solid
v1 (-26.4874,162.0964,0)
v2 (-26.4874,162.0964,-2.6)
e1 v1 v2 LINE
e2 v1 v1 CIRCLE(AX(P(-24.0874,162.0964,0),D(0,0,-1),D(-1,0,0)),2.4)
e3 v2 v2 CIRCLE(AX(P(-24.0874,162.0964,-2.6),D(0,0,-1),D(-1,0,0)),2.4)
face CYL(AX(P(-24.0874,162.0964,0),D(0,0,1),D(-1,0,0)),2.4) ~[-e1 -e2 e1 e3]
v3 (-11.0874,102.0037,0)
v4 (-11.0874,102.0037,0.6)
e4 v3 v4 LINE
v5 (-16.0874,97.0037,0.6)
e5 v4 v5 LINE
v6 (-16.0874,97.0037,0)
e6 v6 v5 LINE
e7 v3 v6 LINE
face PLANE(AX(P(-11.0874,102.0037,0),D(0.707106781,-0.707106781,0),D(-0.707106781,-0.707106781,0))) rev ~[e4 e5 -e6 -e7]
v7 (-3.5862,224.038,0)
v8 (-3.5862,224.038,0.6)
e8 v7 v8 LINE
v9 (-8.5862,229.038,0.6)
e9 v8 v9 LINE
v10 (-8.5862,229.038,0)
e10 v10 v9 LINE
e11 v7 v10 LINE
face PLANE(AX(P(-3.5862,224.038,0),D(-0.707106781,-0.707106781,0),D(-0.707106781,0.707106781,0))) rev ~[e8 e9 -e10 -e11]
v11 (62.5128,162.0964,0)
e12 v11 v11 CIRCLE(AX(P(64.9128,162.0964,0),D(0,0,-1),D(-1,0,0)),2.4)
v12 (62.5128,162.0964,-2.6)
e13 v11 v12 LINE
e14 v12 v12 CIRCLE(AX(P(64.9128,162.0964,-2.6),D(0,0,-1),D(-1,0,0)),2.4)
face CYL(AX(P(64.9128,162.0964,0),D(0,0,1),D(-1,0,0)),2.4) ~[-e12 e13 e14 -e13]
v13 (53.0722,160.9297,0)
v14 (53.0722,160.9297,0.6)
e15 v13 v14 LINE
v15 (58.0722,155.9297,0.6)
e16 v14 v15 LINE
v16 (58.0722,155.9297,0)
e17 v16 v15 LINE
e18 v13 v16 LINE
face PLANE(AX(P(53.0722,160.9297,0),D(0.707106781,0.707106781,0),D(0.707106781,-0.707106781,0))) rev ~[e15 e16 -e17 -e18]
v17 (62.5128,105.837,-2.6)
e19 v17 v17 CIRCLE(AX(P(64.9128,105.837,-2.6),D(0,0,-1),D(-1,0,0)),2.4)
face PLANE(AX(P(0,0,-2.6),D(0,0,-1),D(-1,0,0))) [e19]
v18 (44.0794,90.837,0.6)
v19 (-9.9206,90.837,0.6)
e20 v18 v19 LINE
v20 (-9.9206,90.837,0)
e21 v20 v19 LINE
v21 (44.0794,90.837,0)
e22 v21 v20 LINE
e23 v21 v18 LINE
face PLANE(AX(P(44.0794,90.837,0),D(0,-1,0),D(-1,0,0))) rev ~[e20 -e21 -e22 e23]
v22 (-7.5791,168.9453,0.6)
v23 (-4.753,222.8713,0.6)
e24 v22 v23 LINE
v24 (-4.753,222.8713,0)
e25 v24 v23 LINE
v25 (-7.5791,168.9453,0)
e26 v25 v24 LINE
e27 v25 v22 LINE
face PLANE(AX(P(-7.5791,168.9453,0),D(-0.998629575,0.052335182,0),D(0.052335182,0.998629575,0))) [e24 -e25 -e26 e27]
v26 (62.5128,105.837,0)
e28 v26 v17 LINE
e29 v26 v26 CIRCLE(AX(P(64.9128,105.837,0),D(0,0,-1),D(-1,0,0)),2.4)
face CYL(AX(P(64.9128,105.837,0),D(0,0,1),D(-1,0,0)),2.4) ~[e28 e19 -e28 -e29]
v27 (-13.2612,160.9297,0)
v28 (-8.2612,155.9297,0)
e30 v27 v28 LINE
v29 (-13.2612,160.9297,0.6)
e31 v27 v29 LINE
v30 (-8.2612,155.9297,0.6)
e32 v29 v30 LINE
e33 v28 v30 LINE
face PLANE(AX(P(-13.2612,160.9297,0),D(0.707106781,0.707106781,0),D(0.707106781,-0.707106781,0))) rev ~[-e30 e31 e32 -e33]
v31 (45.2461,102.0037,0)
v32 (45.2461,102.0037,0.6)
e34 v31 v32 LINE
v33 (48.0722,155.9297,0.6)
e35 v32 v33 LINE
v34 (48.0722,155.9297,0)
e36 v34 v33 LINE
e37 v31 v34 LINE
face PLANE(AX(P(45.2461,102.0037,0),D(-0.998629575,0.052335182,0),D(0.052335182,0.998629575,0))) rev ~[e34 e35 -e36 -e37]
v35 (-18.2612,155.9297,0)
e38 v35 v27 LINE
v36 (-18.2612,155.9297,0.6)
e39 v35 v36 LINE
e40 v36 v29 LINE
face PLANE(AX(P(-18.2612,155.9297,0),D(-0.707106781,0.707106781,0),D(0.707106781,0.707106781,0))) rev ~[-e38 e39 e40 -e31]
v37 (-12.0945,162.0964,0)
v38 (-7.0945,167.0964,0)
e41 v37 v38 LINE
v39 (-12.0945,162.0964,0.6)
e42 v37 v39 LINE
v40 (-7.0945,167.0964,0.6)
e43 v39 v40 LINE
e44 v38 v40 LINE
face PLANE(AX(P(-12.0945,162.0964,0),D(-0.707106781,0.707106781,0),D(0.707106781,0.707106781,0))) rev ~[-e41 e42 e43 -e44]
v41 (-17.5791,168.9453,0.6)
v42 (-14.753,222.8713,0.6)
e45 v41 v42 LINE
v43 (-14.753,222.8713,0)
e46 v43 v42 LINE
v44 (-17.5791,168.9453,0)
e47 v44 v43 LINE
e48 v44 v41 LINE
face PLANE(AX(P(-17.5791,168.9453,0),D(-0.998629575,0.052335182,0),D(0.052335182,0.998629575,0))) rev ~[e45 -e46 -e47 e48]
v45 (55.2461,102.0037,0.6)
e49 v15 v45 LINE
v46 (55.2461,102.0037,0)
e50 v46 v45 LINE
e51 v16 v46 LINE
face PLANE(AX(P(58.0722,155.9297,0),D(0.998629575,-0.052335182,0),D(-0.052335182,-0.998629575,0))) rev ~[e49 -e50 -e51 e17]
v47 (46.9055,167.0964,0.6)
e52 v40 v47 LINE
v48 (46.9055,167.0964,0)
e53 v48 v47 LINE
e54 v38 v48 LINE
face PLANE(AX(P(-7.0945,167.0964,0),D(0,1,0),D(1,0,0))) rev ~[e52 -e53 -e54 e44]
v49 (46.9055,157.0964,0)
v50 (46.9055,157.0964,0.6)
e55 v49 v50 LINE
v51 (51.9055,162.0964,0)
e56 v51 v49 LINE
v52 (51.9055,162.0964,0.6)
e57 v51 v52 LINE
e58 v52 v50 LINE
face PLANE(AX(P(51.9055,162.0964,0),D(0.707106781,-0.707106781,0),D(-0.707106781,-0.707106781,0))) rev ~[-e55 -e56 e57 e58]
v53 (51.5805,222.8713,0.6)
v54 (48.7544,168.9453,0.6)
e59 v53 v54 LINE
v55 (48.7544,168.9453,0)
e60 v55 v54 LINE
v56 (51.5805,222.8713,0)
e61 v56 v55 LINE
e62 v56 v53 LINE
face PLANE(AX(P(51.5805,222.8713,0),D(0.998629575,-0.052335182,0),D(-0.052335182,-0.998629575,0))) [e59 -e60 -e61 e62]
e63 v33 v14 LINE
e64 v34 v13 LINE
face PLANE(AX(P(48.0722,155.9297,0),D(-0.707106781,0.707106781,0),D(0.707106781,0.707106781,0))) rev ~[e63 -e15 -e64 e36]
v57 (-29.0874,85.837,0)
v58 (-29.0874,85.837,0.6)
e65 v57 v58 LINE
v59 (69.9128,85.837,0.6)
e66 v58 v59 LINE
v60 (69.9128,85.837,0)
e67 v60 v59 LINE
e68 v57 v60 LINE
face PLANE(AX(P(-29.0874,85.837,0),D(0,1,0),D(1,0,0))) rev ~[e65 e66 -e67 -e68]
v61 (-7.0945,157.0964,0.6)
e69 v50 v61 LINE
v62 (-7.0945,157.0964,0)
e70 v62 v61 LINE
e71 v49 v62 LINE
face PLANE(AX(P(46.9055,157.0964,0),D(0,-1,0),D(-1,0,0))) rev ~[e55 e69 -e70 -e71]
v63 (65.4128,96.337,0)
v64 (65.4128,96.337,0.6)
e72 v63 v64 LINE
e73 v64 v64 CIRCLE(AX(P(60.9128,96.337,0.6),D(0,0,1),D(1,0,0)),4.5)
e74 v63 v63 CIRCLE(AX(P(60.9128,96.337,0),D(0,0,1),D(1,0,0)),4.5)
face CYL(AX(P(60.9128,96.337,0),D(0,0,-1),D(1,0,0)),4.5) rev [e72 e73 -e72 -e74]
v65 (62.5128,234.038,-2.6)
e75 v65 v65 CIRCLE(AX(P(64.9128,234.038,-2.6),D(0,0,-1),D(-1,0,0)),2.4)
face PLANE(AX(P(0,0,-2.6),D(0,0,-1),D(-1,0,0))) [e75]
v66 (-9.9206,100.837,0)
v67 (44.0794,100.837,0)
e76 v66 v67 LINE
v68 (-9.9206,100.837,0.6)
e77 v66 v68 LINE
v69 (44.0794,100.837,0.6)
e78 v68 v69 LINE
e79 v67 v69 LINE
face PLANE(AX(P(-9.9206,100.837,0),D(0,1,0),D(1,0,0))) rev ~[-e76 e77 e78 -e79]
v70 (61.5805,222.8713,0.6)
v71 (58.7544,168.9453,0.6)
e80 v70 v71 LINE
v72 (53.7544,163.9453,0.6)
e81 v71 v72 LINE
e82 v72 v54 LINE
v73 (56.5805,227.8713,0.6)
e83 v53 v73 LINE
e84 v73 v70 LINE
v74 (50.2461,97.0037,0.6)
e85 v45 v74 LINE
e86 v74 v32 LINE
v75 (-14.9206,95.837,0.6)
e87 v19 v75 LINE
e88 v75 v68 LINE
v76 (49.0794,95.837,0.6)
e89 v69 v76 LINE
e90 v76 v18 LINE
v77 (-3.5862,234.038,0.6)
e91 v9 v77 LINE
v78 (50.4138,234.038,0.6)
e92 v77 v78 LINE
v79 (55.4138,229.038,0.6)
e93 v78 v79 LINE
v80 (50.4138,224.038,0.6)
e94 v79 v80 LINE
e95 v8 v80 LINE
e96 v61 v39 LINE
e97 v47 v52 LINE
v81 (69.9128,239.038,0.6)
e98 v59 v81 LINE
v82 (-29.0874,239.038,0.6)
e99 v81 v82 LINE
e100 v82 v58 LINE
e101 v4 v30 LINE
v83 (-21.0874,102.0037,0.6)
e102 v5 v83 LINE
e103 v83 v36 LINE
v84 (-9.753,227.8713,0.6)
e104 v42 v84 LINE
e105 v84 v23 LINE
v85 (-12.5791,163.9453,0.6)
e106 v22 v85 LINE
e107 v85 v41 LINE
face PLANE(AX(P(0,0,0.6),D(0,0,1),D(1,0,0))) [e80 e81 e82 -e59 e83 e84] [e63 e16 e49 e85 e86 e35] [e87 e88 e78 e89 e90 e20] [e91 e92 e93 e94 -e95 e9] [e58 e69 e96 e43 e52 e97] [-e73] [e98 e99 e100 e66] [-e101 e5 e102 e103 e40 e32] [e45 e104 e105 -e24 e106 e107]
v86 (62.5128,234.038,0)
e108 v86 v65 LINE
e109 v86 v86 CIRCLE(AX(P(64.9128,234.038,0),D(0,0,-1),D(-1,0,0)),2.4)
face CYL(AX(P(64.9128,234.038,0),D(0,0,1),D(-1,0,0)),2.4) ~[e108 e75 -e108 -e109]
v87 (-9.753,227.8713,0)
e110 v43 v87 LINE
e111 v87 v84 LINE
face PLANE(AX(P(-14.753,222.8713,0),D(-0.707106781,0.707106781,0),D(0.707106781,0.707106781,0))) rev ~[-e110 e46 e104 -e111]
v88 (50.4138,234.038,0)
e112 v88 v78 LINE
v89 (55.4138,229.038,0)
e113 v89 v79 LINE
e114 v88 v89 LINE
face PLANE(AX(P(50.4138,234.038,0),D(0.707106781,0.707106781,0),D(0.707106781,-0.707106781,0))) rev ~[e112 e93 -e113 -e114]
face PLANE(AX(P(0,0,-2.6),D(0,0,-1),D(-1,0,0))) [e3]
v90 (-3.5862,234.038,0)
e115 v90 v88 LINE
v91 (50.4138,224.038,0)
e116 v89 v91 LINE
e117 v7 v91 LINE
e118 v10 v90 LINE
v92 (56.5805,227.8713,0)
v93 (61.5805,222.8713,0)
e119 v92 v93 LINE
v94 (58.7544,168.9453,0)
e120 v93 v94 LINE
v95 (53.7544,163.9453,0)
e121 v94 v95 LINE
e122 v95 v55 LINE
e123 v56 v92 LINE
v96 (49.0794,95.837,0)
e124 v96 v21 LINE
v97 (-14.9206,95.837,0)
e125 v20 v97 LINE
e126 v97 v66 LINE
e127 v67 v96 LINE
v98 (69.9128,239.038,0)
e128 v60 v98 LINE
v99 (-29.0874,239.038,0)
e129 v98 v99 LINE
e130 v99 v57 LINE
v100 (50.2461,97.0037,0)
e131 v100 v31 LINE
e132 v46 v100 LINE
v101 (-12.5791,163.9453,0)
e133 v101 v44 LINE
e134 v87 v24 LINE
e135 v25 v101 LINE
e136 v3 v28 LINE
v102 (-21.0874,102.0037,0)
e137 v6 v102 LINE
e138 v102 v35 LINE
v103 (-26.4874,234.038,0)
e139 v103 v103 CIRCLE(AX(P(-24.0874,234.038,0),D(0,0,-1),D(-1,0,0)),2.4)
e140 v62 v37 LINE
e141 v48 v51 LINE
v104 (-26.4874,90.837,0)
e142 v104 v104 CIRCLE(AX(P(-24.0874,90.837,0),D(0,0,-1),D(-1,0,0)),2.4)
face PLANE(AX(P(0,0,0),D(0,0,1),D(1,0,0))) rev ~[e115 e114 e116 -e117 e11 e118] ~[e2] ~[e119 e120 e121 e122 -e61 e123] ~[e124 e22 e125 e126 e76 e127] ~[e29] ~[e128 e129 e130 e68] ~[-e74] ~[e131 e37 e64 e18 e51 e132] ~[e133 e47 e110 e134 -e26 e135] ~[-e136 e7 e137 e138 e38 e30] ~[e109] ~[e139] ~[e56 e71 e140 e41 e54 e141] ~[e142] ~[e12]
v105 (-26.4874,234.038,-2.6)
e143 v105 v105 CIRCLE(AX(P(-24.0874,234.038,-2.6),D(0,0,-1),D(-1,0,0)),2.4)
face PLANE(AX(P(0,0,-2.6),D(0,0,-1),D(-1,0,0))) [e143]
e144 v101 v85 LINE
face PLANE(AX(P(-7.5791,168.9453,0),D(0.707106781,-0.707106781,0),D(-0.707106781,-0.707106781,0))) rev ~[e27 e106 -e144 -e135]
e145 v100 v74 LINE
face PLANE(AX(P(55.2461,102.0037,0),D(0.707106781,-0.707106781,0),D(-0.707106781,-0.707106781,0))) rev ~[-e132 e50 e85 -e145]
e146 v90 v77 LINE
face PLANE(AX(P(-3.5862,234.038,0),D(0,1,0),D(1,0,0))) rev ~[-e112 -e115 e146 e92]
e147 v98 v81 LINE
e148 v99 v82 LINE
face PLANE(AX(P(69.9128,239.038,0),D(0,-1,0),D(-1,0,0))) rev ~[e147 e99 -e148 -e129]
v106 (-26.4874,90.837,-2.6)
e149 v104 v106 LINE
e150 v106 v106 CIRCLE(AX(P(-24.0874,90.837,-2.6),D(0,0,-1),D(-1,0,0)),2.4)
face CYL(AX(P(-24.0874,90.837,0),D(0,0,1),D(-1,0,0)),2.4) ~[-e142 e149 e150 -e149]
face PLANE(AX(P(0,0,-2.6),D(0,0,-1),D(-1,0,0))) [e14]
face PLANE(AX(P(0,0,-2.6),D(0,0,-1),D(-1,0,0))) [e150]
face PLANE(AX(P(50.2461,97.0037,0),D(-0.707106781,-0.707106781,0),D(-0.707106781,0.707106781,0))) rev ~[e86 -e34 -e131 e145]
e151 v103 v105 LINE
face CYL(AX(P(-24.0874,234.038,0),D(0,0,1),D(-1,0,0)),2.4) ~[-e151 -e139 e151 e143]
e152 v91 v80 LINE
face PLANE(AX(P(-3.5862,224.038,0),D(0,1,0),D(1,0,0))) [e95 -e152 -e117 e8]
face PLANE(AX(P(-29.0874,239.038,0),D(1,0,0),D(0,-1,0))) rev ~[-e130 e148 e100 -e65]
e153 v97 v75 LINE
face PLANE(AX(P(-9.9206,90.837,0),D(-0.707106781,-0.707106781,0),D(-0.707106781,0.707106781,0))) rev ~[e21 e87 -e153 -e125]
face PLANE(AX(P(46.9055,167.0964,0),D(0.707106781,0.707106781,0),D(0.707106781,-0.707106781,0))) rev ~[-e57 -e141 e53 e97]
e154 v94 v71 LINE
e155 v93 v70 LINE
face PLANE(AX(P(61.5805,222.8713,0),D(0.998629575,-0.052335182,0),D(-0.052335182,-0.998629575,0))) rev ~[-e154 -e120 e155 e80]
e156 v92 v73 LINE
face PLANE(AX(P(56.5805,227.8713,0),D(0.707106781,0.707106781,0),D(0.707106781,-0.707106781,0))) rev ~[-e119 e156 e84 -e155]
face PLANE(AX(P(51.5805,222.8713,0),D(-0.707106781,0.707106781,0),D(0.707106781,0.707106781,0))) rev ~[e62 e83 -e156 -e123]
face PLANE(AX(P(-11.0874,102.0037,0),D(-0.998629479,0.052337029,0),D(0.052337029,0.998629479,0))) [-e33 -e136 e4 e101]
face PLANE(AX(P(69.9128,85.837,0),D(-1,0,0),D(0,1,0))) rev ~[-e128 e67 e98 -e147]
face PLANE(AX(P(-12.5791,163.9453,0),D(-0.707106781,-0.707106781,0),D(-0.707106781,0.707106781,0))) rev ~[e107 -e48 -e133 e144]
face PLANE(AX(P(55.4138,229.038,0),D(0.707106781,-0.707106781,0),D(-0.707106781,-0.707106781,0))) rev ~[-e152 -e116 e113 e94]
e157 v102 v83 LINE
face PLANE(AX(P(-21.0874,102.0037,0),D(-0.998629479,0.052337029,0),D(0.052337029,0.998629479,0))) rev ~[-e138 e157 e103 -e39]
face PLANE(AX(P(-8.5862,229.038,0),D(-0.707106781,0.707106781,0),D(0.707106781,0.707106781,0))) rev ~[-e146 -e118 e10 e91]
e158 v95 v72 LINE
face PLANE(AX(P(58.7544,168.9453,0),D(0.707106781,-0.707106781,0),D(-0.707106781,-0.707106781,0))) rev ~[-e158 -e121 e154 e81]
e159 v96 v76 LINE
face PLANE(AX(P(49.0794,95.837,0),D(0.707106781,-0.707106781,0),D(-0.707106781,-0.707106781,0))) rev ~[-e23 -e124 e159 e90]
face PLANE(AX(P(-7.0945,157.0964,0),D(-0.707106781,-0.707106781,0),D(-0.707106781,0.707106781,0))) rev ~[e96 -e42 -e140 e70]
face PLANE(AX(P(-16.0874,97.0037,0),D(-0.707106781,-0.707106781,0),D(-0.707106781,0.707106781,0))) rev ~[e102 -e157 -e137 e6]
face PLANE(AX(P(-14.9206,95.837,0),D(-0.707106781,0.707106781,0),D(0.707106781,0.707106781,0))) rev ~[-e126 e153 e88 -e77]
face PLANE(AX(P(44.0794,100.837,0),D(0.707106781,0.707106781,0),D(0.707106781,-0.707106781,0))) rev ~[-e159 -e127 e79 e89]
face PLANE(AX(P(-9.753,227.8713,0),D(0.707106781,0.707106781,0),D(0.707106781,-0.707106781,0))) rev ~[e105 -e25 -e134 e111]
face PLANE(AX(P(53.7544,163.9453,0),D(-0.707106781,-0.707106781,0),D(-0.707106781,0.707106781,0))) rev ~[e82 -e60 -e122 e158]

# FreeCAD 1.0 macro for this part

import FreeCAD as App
import Part
import Sketcher

V = App.Vector
Q = App.Units.Quantity


def add_polygon(sketch, points):
    """Adds a closed chain of lines whose ends are joined by coincident constraints."""
    first, n = sketch.GeometryCount, len(points)
    for a, b in zip(points, points[1:] + points[:1]):
        sketch.addGeometry(Part.LineSegment(App.Vector(*a, 0), App.Vector(*b, 0)), False)
    for i in range(n):
        sketch.addConstraint(Sketcher.Constraint("Coincident", first + i, 2, first + (i + 1) % n, 1))

doc = App.newDocument("Part")
body = doc.addObject("PartDesign::Body", "Body")

# Sketch on XY plane
sketch1 = body.newObject("Sketcher::SketchObject", "Sketch")
sketch1.AttachmentSupport = (doc.getObject("XY_Plane"), [""])
sketch1.MapMode = "FlatFace"
add_polygon(sketch1, [(69.9128, 239.038), (-29.0874, 239.038), (-29.0874, 85.837), (69.9128, 85.837)])  # lines 0-3
add_polygon(sketch1, [(49.0794, 95.837), (44.0794, 90.837), (-9.9206, 90.837), (-14.9206, 95.837), (-9.9206, 100.837), (44.0794, 100.837)])  # lines 4-9
add_polygon(sketch1, [(-16.0874, 97.0037), (-21.0874, 102.0037), (-18.2612, 155.9297), (-13.2612, 160.9297), (-8.2612, 155.9297), (-11.0874, 102.0037)])  # lines 10-15
add_polygon(sketch1, [(46.9055, 157.0964), (-7.0945, 157.0964), (-12.0945, 162.0964), (-7.0945, 167.0964), (46.9055, 167.0964), (51.9055, 162.0964)])  # lines 16-21
sketch1.addGeometry(Part.Circle(V(60.9128, 96.337, 0), V(0, 0, 1), 4.5), False)  # 22
add_polygon(sketch1, [(45.2461, 102.0037), (48.0722, 155.9297), (53.0722, 160.9297), (58.0722, 155.9297), (55.2461, 102.0037), (50.2461, 97.0037)])  # lines 23-28
add_polygon(sketch1, [(-12.5791, 163.9453), (-17.5791, 168.9453), (-14.753, 222.8713), (-9.753, 227.8713), (-4.753, 222.8713), (-7.5791, 168.9453)])  # lines 29-34
add_polygon(sketch1, [(48.7544, 168.9453), (51.5805, 222.8713), (56.5805, 227.8713), (61.5805, 222.8713), (58.7544, 168.9453), (53.7544, 163.9453)])  # lines 35-40
add_polygon(sketch1, [(50.4138, 224.038), (-3.5862, 224.038), (-8.5862, 229.038), (-3.5862, 234.038), (50.4138, 234.038), (55.4138, 229.038)])  # lines 41-46
sketch1.addConstraint([
    Sketcher.Constraint("Horizontal", 0),
    Sketcher.Constraint("Vertical", 1),
    Sketcher.Constraint("Horizontal", 2),
    Sketcher.Constraint("Vertical", 3),
    Sketcher.Constraint("Horizontal", 5),
    Sketcher.Constraint("Horizontal", 8),
    Sketcher.Constraint("Horizontal", 16),
    Sketcher.Constraint("Horizontal", 19),
    Sketcher.Constraint("Horizontal", 41),
    Sketcher.Constraint("Horizontal", 44),
    Sketcher.Constraint("Perpendicular", 4, 6),
    Sketcher.Constraint("Perpendicular", 6, 7),
    Sketcher.Constraint("Perpendicular", 7, 9),
    Sketcher.Constraint("Parallel", 9, 10),
    Sketcher.Constraint("Perpendicular", 10, 12),
    Sketcher.Constraint("Perpendicular", 12, 13),
    Sketcher.Constraint("Parallel", 11, 14),
    Sketcher.Constraint("Perpendicular", 13, 15),
    Sketcher.Constraint("Perpendicular", 15, 17),
    Sketcher.Constraint("Perpendicular", 17, 18),
    Sketcher.Constraint("Perpendicular", 18, 20),
    Sketcher.Constraint("Perpendicular", 20, 21),
    Sketcher.Constraint("Parallel", 14, 23),
    Sketcher.Constraint("Parallel", 21, 24),
    Sketcher.Constraint("Perpendicular", 24, 25),
    Sketcher.Constraint("Parallel", 23, 26),
    Sketcher.Constraint("Perpendicular", 25, 27),
    Sketcher.Constraint("Perpendicular", 27, 28),
    Sketcher.Constraint("Parallel", 28, 29),
    Sketcher.Constraint("Parallel", 26, 30),
    Sketcher.Constraint("Perpendicular", 29, 31),
    Sketcher.Constraint("Perpendicular", 31, 32),
    Sketcher.Constraint("Parallel", 30, 33),
    Sketcher.Constraint("Perpendicular", 32, 34),
    Sketcher.Constraint("Parallel", 33, 35),
    Sketcher.Constraint("Parallel", 34, 36),
    Sketcher.Constraint("Perpendicular", 36, 37),
    Sketcher.Constraint("Parallel", 35, 38),
    Sketcher.Constraint("Perpendicular", 37, 39),
    Sketcher.Constraint("Perpendicular", 39, 40),
    Sketcher.Constraint("Parallel", 40, 42),
    Sketcher.Constraint("Perpendicular", 42, 43),
    Sketcher.Constraint("Perpendicular", 43, 45),
    Sketcher.Constraint("Perpendicular", 45, 46),
    Sketcher.Constraint("Horizontal", 6, 2, 9, 2),
    Sketcher.Constraint("Horizontal", 11, 2, 13, 2),
    Sketcher.Constraint("Horizontal", 10, 2, 14, 2),
    Sketcher.Constraint("Horizontal", 17, 2, 20, 2),
    Sketcher.Constraint("Horizontal", 13, 2, 23, 2),
    Sketcher.Constraint("Horizontal", 12, 2, 24, 2),
    Sketcher.Constraint("Horizontal", 23, 2, 25, 2),
    Sketcher.Constraint("Horizontal", 14, 2, 26, 2),
    Sketcher.Constraint("Horizontal", 15, 2, 27, 2),
    Sketcher.Constraint("Horizontal", 30, 2, 32, 2),
    Sketcher.Constraint("Horizontal", 29, 2, 33, 2),
    Sketcher.Constraint("Horizontal", 32, 2, 35, 2),
    Sketcher.Constraint("Horizontal", 31, 2, 36, 2),
    Sketcher.Constraint("Horizontal", 35, 2, 37, 2),
    Sketcher.Constraint("Horizontal", 33, 2, 38, 2),
    Sketcher.Constraint("Horizontal", 34, 2, 39, 2),
    Sketcher.Constraint("Horizontal", 42, 2, 45, 2),
    Sketcher.Constraint("Vertical", 5, 2, 7, 2),
    Sketcher.Constraint("Vertical", 4, 2, 8, 2),
    Sketcher.Constraint("Vertical", 16, 2, 18, 2),
    Sketcher.Constraint("Vertical", 41, 2, 43, 2),
    Sketcher.Constraint("Equal", 8, 16),
    Sketcher.Constraint("Equal", 19, 41),
    Sketcher.Constraint("Equal", 9, 10),
    Sketcher.Constraint("Equal", 15, 17),
    Sketcher.Constraint("Equal", 28, 29),
    Sketcher.Constraint("Equal", 26, 30),
    Sketcher.Constraint("Equal", 40, 42),
    Sketcher.Constraint("Diameter", 22, 9.0),
    Sketcher.Constraint("DistanceX", 22, 3, 2, 2, 9.0),
    Sketcher.Constraint("DistanceY", 22, 3, 7, 2, 4.5),
    Sketcher.Constraint("DistanceX", 5, 2, 5, 1, 54.0),
    Sketcher.Constraint("Angle", 11, Q("87 deg")),
    Sketcher.Constraint("Distance", 11, 54.0),
    Sketcher.Constraint("DistanceY", 2, 2, 4, 2, 5.0),
    Sketcher.Constraint("DistanceX", 6, 2, 5, 2, 5.0),
    Sketcher.Constraint("DistanceX", 1, 2, 10, 2, 8.0),
    Sketcher.Constraint("DistanceY", 41, 2, 0, 2, 15.0),
    Sketcher.Constraint("DistanceY", 1, 2, 1, 1, 153.201),
    Sketcher.Constraint("DistanceX", 0, 2, 0, 1, 99.0002),
    Sketcher.Constraint("DistanceY", -1, 1, 22, 3, 96.337),
    Sketcher.Constraint("DistanceX", -1, 1, 26, 2, 55.246),
    Sketcher.Constraint("DistanceX", 29, 2, -1, 1, 17.579),
    Sketcher.Constraint("DistanceX", 14, 2, 16, 2, 3.993),
    Sketcher.Constraint("DistanceX", 7, 2, 16, 2, 2.826),
    Sketcher.Constraint("DistanceY", 17, 2, 29, 2, 6.849),
    Sketcher.Constraint("DistanceX", 29, 2, 12, 2, 4.318),
    Sketcher.Constraint("DistanceX", 19, 2, 35, 2, 4.675),
    Sketcher.Constraint("DistanceX", 44, 2, 3, 2, 19.499),
    Sketcher.Constraint("DistanceY", -1, 1, 10, 2, 102.0037),
    Sketcher.Constraint("DistanceY", -1, 1, 16, 2, 157.0964),
])
pad1 = body.newObject("PartDesign::Pad", "Pad")
pad1.Profile = sketch1
pad1.Length = 0.6

# Sketch on XY plane
sketch2 = body.newObject("Sketcher::SketchObject", "Sketch001")
sketch2.AttachmentSupport = (doc.getObject("XY_Plane"), [""])
sketch2.MapMode = "FlatFace"
sketch2.addGeometry([
    Part.Circle(V(64.9128, 162.0964, 0), V(0, 0, 1), 2.4),  # 0
    Part.Circle(V(64.9128, 234.038, 0), V(0, 0, 1), 2.4),  # 1
    Part.Circle(V(-24.0874, 234.038, 0), V(0, 0, 1), 2.4),  # 2
    Part.Circle(V(-24.0874, 162.0964, 0), V(0, 0, 1), 2.4),  # 3
    Part.Circle(V(-24.0874, 90.837, 0), V(0, 0, 1), 2.4),  # 4
    Part.Circle(V(64.9128, 105.837, 0), V(0, 0, 1), 2.4),  # 5
], False)
sketch2.addConstraint([
    Sketcher.Constraint("Equal", 0, 1),
    Sketcher.Constraint("Equal", 1, 2),
    Sketcher.Constraint("Equal", 2, 3),
    Sketcher.Constraint("Equal", 3, 4),
    Sketcher.Constraint("Equal", 4, 5),
    Sketcher.Constraint("Horizontal", 1, 3, 2, 3),
    Sketcher.Constraint("Horizontal", 0, 3, 3, 3),
    Sketcher.Constraint("Vertical", 0, 3, 1, 3),
    Sketcher.Constraint("Vertical", 2, 3, 3, 3),
    Sketcher.Constraint("Vertical", 3, 3, 4, 3),
    Sketcher.Constraint("Vertical", 1, 3, 5, 3),
    Sketcher.Constraint("Diameter", 0, 4.8),
    Sketcher.Constraint("DistanceY", 4, 3, 5, 3, 15.0),
    Sketcher.Constraint("DistanceY", -1, 1, 1, 3, 234.038),
    Sketcher.Constraint("DistanceY", -1, 1, 4, 3, 90.837),
    Sketcher.Constraint("DistanceX", -1, 1, 0, 3, 64.9128),
    Sketcher.Constraint("DistanceY", -1, 1, 0, 3, 162.0964),
    Sketcher.Constraint("DistanceX", 2, 3, -1, 1, 24.0874),
])
pad2 = body.newObject("PartDesign::Pad", "Pad001")
pad2.Profile = sketch2
pad2.Length = 2.6
pad2.Reversed = True

doc.recompute()
